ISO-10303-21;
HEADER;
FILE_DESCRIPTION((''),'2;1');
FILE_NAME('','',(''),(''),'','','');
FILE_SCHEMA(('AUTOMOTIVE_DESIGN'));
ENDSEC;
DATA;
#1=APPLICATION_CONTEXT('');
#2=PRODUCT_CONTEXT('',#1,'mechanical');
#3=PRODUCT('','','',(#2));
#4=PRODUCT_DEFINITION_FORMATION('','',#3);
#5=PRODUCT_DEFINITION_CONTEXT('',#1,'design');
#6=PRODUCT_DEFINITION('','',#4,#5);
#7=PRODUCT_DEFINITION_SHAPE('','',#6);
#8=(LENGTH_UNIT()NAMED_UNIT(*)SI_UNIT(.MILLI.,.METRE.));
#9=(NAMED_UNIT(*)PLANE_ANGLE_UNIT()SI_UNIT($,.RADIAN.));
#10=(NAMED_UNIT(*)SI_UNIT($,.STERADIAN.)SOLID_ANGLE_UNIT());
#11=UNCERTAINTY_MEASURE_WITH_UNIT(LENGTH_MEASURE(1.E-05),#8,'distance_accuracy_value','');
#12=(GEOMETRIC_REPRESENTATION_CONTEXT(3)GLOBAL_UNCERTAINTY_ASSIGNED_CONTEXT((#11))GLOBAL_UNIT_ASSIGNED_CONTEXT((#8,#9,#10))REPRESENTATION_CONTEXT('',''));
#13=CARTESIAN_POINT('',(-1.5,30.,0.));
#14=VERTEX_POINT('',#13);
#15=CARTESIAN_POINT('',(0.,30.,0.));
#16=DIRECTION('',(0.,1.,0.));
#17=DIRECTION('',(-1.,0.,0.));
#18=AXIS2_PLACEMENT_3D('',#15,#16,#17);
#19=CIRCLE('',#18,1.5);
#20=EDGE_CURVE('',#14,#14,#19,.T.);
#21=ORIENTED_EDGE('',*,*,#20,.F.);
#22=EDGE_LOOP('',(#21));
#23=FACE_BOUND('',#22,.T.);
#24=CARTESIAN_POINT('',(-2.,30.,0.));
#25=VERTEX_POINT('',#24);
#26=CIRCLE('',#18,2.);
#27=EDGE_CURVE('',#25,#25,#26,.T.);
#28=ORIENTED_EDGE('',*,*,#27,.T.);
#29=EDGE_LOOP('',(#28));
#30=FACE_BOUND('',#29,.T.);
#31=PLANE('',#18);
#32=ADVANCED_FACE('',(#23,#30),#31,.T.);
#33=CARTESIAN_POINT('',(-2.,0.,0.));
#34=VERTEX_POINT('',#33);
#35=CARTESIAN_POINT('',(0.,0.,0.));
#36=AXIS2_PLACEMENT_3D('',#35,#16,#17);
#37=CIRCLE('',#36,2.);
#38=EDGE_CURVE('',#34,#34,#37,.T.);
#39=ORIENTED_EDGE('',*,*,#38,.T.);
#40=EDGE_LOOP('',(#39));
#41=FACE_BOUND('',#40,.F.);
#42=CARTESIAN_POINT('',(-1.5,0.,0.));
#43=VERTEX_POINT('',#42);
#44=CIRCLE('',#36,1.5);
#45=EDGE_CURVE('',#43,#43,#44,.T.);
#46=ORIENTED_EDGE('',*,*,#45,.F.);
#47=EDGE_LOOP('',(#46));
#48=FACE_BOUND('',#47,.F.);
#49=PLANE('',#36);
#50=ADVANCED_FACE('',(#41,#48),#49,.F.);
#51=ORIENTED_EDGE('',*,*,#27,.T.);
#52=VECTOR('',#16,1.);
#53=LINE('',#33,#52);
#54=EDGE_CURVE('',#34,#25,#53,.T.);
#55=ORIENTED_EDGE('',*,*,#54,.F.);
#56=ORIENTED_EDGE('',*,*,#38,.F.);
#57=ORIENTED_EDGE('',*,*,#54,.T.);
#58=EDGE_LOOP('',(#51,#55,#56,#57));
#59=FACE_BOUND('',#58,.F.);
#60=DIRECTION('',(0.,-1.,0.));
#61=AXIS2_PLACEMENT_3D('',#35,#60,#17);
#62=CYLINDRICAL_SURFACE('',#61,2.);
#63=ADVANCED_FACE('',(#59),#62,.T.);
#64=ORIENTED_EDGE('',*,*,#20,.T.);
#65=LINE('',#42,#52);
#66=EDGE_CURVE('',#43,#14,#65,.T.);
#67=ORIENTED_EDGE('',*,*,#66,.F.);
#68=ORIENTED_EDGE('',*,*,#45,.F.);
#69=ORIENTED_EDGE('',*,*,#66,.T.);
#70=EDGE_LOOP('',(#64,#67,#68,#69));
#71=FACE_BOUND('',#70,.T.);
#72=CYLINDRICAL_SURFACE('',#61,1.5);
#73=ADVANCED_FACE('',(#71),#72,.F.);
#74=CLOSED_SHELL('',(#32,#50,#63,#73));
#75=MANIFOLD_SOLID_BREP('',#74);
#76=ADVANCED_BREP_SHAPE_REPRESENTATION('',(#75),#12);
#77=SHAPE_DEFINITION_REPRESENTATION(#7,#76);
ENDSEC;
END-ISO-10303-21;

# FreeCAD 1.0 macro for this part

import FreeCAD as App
import Part
import Sketcher

V = App.Vector

doc = App.newDocument("Part")
body = doc.addObject("PartDesign::Body", "Body")

# Sketch on XZ plane
sketch1 = body.newObject("Sketcher::SketchObject", "Sketch")
sketch1.AttachmentSupport = (doc.getObject("XZ_Plane"), [""])
sketch1.MapMode = "FlatFace"
sketch1.addGeometry([
    Part.Circle(V(0, 0, 0), V(0, 0, 1), 2),
    Part.Circle(V(0, 0, 0), V(0, 0, 1), 1.5),
], False)
sketch1.addConstraint([
    Sketcher.Constraint("Coincident", 0, 3, -1, 1),
    Sketcher.Constraint("Coincident", 1, 3, -1, 1),
    Sketcher.Constraint("Diameter", 0, 4.0),
    Sketcher.Constraint("Diameter", 1, 3.0),
])
pad1 = body.newObject("PartDesign::Pad", "Pad")
pad1.Profile = sketch1
pad1.Length = 30
pad1.Reversed = True

doc.recompute()
